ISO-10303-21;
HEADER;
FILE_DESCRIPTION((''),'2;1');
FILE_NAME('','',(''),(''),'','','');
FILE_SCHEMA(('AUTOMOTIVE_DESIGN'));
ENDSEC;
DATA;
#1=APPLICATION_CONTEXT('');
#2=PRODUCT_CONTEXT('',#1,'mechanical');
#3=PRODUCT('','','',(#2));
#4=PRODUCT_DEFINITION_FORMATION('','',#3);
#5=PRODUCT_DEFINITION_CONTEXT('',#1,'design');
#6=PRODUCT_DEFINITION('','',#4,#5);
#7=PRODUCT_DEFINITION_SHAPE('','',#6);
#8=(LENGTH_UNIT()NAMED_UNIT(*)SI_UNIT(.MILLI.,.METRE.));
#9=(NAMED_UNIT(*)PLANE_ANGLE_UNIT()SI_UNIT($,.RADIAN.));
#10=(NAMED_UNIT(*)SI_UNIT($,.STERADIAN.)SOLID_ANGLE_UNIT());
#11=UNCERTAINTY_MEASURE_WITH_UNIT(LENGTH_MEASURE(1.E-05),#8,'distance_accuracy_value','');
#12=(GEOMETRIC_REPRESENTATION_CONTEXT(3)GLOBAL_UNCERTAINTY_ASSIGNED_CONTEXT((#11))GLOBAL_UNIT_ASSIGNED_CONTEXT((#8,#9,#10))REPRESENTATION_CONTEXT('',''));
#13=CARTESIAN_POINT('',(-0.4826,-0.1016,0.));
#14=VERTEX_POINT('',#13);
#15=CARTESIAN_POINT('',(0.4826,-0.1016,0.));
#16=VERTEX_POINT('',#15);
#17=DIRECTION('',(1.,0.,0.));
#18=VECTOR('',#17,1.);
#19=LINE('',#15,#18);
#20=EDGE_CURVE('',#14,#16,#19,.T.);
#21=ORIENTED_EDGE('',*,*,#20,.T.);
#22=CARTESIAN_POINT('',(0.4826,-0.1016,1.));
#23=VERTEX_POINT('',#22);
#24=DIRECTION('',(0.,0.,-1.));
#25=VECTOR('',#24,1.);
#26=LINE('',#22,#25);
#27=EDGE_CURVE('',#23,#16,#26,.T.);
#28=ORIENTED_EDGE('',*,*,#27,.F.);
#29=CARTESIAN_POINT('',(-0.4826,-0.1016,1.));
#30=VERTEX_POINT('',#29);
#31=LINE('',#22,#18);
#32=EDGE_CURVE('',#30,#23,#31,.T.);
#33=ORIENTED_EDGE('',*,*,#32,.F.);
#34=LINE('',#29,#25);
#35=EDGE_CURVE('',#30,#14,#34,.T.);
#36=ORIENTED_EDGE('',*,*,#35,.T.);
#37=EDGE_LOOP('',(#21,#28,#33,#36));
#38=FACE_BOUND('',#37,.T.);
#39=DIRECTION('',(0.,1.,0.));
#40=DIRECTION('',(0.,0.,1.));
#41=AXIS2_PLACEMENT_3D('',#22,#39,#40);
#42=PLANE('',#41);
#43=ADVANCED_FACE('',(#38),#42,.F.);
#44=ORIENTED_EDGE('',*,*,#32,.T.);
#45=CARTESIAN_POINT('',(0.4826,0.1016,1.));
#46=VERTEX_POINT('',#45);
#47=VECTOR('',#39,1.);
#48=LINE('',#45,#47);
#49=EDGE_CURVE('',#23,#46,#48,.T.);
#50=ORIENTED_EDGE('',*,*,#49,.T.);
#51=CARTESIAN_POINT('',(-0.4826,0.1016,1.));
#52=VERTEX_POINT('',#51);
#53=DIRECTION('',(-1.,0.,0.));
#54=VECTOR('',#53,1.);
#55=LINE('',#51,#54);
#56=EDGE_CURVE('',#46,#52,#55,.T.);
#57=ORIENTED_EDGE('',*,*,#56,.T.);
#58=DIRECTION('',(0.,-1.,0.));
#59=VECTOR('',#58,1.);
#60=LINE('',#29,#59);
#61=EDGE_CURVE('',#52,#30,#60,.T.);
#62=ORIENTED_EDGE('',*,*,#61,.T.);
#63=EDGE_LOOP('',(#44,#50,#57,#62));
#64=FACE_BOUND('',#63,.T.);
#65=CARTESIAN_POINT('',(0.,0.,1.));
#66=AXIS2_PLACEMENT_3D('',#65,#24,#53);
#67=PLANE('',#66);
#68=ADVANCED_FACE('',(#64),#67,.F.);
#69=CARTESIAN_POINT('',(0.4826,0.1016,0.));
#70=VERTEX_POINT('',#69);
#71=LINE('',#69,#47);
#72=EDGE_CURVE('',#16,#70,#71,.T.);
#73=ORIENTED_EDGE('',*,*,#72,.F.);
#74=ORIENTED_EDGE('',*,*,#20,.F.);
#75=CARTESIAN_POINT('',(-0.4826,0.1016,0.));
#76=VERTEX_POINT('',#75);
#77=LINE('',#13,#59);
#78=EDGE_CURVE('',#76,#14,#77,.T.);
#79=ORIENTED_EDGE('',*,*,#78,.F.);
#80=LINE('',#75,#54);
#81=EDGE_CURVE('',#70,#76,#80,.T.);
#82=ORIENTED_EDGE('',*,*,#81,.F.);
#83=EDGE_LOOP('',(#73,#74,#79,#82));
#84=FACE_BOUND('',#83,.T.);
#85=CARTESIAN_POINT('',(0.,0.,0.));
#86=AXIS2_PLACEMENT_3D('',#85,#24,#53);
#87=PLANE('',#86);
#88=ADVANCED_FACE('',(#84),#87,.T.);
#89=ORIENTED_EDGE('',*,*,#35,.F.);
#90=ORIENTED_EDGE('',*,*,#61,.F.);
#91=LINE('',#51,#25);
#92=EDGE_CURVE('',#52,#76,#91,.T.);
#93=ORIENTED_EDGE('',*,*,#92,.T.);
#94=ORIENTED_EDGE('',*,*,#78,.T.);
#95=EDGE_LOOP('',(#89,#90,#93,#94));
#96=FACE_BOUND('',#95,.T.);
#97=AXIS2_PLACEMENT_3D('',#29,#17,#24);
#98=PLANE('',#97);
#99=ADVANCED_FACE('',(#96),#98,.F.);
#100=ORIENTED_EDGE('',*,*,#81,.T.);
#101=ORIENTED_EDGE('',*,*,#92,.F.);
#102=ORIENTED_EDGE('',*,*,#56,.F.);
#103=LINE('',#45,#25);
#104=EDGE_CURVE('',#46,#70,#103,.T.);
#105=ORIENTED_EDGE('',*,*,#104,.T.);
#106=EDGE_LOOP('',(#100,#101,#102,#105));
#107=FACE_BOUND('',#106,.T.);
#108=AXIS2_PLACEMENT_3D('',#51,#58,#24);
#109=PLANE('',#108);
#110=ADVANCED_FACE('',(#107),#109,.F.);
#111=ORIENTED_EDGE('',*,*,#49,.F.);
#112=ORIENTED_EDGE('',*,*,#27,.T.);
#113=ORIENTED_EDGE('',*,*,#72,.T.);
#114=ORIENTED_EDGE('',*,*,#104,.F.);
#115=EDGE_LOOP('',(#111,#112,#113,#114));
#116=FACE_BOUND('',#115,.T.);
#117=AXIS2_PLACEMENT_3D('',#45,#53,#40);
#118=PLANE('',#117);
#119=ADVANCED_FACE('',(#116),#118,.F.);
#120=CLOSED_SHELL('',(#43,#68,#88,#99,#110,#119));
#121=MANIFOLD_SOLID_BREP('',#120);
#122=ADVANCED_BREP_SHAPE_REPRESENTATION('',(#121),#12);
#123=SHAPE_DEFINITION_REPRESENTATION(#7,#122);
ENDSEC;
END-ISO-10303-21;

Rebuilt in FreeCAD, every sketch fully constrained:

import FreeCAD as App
import Part
import Sketcher
Q = App.Units.Quantity

doc = App.newDocument("Part")
body = doc.addObject("PartDesign::Body", "Body")

# Sketch on XY plane
sketch1 = body.newObject("Sketcher::SketchObject", "Sketch")
sketch1.AttachmentSupport = (doc.getObject("XY_Plane"), [""])
sketch1.MapMode = "FlatFace"
sketch1.addGeometry([
    Part.LineSegment(App.Vector(-0.4826, 0.1016, 0), App.Vector(-0.4826, -0.1016, 0)),
    Part.LineSegment(App.Vector(-0.4826, -0.1016, 0), App.Vector(0.4826, -0.1016, 0)),
    Part.LineSegment(App.Vector(0.4826, -0.1016, 0), App.Vector(0.4826, 0.1016, 0)),
    Part.LineSegment(App.Vector(0.4826, 0.1016, 0), App.Vector(-0.4826, 0.1016, 0)),
], False)
sketch1.addConstraint([
    Sketcher.Constraint("Coincident", 0, 2, 1, 1),
    Sketcher.Constraint("Coincident", 1, 2, 2, 1),
    Sketcher.Constraint("Coincident", 2, 2, 3, 1),
    Sketcher.Constraint("Coincident", 3, 2, 0, 1),
    Sketcher.Constraint("Vertical", 0),
    Sketcher.Constraint("Horizontal", 1),
    Sketcher.Constraint("Vertical", 2),
    Sketcher.Constraint("Horizontal", 3),
    Sketcher.Constraint("Symmetric", 0, 2, 2, 2, -1, 1),
    Sketcher.Constraint("DistanceX", 1, 1, 1, 2, Q("0.038 in")),
    Sketcher.Constraint("DistanceY", 0, 2, 0, 1, Q("0.008 in")),
])
pad1 = body.newObject("PartDesign::Pad", "Pad")
pad1.Profile = sketch1
pad1.Length = 1

doc.recompute()
